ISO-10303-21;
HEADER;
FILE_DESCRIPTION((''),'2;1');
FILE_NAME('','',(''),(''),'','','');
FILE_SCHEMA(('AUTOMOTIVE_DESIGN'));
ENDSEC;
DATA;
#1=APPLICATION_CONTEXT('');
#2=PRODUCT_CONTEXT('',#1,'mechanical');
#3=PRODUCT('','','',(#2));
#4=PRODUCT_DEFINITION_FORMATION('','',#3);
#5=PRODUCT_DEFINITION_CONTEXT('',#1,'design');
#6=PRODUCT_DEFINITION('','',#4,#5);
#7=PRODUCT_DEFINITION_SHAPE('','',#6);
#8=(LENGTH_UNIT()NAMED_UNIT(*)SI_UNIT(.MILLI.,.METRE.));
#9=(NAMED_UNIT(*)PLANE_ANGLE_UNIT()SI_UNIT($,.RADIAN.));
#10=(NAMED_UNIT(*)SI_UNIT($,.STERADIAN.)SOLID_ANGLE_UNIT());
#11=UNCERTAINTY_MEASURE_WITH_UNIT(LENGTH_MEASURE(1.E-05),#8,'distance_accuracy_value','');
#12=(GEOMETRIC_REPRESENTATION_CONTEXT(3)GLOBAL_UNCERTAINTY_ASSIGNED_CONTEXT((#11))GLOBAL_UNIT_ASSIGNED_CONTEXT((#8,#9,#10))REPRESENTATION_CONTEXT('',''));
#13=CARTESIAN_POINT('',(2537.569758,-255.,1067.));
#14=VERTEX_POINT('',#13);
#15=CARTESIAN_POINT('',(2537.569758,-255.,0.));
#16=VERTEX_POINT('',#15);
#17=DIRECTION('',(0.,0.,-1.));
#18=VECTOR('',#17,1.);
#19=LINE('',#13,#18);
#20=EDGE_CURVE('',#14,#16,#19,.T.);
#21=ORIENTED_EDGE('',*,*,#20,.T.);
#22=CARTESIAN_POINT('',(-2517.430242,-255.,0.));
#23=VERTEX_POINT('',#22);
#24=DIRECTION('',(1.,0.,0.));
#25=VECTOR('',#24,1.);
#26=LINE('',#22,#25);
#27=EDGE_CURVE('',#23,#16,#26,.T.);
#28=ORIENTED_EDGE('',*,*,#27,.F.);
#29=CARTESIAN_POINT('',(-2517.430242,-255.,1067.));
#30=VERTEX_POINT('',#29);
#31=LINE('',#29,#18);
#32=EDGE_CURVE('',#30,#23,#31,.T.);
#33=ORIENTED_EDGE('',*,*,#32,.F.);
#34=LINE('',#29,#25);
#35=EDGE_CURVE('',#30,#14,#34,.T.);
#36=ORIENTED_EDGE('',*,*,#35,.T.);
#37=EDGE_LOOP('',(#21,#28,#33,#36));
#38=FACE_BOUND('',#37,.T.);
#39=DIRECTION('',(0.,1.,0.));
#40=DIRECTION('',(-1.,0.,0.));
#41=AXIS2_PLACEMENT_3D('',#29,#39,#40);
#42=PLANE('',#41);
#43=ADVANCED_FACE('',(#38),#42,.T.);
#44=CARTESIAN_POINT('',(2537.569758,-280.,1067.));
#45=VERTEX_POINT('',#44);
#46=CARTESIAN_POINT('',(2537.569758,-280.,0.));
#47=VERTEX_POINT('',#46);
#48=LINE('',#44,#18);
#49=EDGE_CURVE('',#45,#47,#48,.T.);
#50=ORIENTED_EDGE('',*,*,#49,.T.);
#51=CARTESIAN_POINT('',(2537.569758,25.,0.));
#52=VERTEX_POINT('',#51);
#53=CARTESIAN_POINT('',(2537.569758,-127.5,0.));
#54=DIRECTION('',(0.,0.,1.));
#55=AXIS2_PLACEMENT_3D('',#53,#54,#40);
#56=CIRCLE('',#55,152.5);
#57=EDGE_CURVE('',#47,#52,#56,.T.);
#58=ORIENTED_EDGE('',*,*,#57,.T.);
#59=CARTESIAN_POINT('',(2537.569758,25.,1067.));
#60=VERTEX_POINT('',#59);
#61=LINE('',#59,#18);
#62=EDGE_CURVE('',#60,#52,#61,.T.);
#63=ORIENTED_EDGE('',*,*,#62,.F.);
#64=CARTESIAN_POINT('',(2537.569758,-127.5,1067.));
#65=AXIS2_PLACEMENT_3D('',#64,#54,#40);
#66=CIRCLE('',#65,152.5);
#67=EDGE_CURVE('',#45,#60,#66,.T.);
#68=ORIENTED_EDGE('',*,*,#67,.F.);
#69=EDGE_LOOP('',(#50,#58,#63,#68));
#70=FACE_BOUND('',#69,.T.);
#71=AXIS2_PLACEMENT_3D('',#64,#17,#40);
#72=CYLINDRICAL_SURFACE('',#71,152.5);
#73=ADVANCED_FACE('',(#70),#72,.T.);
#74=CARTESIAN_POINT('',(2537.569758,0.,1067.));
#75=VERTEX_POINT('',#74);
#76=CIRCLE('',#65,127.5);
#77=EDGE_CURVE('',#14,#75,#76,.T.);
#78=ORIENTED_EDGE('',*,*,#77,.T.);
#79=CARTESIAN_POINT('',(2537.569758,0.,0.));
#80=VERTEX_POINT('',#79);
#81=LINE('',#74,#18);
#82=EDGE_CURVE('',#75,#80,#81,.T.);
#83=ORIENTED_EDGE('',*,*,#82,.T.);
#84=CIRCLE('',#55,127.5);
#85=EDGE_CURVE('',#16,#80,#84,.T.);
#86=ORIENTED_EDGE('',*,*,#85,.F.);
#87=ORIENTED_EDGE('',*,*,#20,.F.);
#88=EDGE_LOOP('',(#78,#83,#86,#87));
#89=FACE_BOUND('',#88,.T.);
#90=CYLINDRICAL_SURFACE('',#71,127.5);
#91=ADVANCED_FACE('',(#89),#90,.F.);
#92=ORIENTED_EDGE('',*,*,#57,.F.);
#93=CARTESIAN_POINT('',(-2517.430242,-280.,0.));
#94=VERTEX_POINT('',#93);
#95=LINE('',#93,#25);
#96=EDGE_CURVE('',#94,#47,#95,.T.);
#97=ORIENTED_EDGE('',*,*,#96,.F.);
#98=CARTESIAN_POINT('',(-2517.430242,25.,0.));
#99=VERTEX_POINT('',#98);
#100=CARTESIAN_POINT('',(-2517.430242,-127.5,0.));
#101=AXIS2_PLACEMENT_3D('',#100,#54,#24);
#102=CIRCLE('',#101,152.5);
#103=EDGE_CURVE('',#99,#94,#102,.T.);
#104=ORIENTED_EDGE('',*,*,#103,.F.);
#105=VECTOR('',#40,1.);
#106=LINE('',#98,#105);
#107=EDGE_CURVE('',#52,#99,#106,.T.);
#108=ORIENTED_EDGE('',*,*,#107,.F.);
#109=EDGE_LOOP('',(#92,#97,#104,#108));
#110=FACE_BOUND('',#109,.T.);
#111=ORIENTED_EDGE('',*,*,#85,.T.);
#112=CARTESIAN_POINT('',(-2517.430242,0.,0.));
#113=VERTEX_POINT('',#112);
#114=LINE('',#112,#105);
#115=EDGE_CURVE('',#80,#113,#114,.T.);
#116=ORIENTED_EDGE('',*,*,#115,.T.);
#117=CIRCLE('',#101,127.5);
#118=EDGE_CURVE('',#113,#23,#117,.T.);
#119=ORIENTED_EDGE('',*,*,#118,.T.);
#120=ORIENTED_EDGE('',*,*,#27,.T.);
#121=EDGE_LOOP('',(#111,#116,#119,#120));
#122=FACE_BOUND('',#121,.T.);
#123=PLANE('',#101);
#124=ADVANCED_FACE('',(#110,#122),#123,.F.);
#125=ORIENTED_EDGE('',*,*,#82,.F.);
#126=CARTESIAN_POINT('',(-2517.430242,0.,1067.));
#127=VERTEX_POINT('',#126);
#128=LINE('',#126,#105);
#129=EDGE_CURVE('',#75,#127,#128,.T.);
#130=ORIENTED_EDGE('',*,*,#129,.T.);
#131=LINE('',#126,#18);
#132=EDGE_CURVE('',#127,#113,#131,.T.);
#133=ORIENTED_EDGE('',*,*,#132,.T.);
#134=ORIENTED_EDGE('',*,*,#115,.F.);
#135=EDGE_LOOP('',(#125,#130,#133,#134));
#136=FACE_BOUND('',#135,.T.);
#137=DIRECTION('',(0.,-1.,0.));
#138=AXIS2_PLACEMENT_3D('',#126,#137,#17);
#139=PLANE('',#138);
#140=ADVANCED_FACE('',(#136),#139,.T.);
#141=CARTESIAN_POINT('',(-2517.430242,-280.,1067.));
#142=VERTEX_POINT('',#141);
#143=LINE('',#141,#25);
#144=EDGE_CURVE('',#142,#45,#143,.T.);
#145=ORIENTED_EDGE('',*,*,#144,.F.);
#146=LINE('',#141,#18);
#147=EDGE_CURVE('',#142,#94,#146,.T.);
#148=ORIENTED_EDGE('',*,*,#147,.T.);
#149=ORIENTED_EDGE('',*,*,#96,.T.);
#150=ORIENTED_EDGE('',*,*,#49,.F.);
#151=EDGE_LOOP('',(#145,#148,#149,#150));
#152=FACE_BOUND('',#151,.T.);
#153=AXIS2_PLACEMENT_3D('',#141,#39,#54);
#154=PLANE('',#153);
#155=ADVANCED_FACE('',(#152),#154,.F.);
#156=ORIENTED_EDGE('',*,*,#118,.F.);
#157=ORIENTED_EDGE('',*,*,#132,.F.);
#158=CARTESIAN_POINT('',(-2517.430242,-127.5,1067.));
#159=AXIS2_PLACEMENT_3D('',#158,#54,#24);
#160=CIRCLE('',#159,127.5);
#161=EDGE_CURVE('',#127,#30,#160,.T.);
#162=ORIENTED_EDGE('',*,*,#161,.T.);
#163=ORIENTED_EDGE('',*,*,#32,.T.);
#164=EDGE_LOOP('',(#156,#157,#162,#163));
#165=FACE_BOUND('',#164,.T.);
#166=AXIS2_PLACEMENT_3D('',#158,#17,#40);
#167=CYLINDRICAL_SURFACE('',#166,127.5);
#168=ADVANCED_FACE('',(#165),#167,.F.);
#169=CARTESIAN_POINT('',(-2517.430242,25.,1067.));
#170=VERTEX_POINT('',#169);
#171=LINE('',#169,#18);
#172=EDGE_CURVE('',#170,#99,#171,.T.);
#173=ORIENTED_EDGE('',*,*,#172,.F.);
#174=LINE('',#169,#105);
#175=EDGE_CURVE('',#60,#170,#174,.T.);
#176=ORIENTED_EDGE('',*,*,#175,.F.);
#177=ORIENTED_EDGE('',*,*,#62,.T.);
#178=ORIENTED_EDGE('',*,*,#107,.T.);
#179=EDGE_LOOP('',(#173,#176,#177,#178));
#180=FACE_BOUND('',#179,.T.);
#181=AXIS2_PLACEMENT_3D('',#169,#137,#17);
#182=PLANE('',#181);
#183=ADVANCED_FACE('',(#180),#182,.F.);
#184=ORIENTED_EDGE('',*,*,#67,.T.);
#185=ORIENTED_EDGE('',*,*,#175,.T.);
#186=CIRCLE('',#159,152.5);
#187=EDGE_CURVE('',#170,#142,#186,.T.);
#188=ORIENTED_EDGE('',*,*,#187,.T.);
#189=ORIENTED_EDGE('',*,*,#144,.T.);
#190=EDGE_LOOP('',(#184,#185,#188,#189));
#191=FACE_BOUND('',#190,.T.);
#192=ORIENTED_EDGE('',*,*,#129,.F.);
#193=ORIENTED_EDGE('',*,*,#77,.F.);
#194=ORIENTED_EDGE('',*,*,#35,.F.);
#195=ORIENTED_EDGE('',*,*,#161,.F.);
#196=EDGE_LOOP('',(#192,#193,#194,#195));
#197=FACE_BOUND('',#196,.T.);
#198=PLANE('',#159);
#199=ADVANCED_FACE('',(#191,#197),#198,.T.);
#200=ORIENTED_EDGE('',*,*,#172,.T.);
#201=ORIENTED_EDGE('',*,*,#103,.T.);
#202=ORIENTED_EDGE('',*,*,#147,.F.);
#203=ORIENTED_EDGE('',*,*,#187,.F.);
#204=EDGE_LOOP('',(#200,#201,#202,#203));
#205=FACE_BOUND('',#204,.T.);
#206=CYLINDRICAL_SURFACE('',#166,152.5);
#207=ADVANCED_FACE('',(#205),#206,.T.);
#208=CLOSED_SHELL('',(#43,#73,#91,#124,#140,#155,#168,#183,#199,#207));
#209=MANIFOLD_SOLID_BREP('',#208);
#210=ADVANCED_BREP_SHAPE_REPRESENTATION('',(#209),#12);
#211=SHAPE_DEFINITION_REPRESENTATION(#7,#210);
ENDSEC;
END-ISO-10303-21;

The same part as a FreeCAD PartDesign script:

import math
import FreeCAD as App
import Part
import Sketcher

doc = App.newDocument("Part")
params = doc.addObject("Spreadsheet::Sheet", "Params")
for row, (alias, value) in enumerate([
    ("sketch1_radius", "152.5 mm"),
    ("sketch1_radius2", "127.5 mm"),
    ("sketch1_width", "5055 mm"),
    ("pad1_length", "1067 mm"),
], start=1):
    params.set(f"A{row}", alias)
    params.set(f"B{row}", "=" + value)
    params.setAlias(f"B{row}", alias)

body = doc.addObject("PartDesign::Body", "Body")

sketch1 = doc.addObject("Sketcher::SketchObject", "Sketch")
body.addObject(sketch1)
sketch1.AttachmentSupport = (doc.XY_Plane, [""])
sketch1.MapMode = "FlatFace"
sketch1.addGeometry([
    Part.LineSegment(App.Vector(2538, 25, 0), App.Vector(-2517, 25, 0)),
    Part.ArcOfCircle(Part.Circle(App.Vector(-2517, -128, 0), App.Vector(0, 0, 1), 152), math.radians(90), math.radians(270)),
    Part.LineSegment(App.Vector(-2517, -280, 0), App.Vector(2538, -280, 0)),
    Part.ArcOfCircle(Part.Circle(App.Vector(2538, -128, 0), App.Vector(0, 0, 1), 152), math.radians(-90), math.radians(90)),
    Part.LineSegment(App.Vector(-2517, 0, 0), App.Vector(2538, 0, 0)),
    Part.ArcOfCircle(Part.Circle(App.Vector(2538, -128, 0), App.Vector(0, 0, 1), 128), math.radians(-90), math.radians(90)),
    Part.LineSegment(App.Vector(2538, -255, 0), App.Vector(-2517, -255, 0)),
    Part.ArcOfCircle(Part.Circle(App.Vector(-2517, -128, 0), App.Vector(0, 0, 1), 128), math.radians(90), math.radians(270)),
], False)
sketch1.addConstraint([
    Sketcher.Constraint("Tangent", 0, 2, 1, 1),
    Sketcher.Constraint("Tangent", 1, 2, 2, 1),
    Sketcher.Constraint("Tangent", 2, 2, 3, 1),
    Sketcher.Constraint("Tangent", 3, 2, 0, 1),
    Sketcher.Constraint("Tangent", 4, 2, 5, 2),
    Sketcher.Constraint("Tangent", 5, 1, 6, 1),
    Sketcher.Constraint("Tangent", 6, 2, 7, 2),
    Sketcher.Constraint("Tangent", 7, 1, 4, 1),
    Sketcher.Constraint("Horizontal", 0),
    Sketcher.Constraint("Horizontal", 2),
    Sketcher.Constraint("Horizontal", 4),
    Sketcher.Constraint("Horizontal", 6),
    Sketcher.Constraint("Coincident", 5, 3, 3, 3),
    Sketcher.Constraint("PointOnObject", 4, 2, -1),
    Sketcher.Constraint("Vertical", 7, 3, 0, 2),
    Sketcher.Constraint("Radius", 1, 152.5),
    Sketcher.Constraint("Radius", 5, 127.5),
    Sketcher.Constraint("DistanceX", 0, 2, 0, 1, 5055.0),
    Sketcher.Constraint("DistanceX", 1, 3, -1, 1, 2517.430242),
])
sketch1.setExpression("Constraints[15]", "Params.sketch1_radius")
sketch1.setExpression("Constraints[16]", "Params.sketch1_radius2")
sketch1.setExpression("Constraints[17]", "Params.sketch1_width")
pad1 = doc.addObject("PartDesign::Pad", "Pad")
body.addObject(pad1)
pad1.Profile = sketch1
pad1.setExpression("Length", "Params.pad1_length")

doc.recompute()
